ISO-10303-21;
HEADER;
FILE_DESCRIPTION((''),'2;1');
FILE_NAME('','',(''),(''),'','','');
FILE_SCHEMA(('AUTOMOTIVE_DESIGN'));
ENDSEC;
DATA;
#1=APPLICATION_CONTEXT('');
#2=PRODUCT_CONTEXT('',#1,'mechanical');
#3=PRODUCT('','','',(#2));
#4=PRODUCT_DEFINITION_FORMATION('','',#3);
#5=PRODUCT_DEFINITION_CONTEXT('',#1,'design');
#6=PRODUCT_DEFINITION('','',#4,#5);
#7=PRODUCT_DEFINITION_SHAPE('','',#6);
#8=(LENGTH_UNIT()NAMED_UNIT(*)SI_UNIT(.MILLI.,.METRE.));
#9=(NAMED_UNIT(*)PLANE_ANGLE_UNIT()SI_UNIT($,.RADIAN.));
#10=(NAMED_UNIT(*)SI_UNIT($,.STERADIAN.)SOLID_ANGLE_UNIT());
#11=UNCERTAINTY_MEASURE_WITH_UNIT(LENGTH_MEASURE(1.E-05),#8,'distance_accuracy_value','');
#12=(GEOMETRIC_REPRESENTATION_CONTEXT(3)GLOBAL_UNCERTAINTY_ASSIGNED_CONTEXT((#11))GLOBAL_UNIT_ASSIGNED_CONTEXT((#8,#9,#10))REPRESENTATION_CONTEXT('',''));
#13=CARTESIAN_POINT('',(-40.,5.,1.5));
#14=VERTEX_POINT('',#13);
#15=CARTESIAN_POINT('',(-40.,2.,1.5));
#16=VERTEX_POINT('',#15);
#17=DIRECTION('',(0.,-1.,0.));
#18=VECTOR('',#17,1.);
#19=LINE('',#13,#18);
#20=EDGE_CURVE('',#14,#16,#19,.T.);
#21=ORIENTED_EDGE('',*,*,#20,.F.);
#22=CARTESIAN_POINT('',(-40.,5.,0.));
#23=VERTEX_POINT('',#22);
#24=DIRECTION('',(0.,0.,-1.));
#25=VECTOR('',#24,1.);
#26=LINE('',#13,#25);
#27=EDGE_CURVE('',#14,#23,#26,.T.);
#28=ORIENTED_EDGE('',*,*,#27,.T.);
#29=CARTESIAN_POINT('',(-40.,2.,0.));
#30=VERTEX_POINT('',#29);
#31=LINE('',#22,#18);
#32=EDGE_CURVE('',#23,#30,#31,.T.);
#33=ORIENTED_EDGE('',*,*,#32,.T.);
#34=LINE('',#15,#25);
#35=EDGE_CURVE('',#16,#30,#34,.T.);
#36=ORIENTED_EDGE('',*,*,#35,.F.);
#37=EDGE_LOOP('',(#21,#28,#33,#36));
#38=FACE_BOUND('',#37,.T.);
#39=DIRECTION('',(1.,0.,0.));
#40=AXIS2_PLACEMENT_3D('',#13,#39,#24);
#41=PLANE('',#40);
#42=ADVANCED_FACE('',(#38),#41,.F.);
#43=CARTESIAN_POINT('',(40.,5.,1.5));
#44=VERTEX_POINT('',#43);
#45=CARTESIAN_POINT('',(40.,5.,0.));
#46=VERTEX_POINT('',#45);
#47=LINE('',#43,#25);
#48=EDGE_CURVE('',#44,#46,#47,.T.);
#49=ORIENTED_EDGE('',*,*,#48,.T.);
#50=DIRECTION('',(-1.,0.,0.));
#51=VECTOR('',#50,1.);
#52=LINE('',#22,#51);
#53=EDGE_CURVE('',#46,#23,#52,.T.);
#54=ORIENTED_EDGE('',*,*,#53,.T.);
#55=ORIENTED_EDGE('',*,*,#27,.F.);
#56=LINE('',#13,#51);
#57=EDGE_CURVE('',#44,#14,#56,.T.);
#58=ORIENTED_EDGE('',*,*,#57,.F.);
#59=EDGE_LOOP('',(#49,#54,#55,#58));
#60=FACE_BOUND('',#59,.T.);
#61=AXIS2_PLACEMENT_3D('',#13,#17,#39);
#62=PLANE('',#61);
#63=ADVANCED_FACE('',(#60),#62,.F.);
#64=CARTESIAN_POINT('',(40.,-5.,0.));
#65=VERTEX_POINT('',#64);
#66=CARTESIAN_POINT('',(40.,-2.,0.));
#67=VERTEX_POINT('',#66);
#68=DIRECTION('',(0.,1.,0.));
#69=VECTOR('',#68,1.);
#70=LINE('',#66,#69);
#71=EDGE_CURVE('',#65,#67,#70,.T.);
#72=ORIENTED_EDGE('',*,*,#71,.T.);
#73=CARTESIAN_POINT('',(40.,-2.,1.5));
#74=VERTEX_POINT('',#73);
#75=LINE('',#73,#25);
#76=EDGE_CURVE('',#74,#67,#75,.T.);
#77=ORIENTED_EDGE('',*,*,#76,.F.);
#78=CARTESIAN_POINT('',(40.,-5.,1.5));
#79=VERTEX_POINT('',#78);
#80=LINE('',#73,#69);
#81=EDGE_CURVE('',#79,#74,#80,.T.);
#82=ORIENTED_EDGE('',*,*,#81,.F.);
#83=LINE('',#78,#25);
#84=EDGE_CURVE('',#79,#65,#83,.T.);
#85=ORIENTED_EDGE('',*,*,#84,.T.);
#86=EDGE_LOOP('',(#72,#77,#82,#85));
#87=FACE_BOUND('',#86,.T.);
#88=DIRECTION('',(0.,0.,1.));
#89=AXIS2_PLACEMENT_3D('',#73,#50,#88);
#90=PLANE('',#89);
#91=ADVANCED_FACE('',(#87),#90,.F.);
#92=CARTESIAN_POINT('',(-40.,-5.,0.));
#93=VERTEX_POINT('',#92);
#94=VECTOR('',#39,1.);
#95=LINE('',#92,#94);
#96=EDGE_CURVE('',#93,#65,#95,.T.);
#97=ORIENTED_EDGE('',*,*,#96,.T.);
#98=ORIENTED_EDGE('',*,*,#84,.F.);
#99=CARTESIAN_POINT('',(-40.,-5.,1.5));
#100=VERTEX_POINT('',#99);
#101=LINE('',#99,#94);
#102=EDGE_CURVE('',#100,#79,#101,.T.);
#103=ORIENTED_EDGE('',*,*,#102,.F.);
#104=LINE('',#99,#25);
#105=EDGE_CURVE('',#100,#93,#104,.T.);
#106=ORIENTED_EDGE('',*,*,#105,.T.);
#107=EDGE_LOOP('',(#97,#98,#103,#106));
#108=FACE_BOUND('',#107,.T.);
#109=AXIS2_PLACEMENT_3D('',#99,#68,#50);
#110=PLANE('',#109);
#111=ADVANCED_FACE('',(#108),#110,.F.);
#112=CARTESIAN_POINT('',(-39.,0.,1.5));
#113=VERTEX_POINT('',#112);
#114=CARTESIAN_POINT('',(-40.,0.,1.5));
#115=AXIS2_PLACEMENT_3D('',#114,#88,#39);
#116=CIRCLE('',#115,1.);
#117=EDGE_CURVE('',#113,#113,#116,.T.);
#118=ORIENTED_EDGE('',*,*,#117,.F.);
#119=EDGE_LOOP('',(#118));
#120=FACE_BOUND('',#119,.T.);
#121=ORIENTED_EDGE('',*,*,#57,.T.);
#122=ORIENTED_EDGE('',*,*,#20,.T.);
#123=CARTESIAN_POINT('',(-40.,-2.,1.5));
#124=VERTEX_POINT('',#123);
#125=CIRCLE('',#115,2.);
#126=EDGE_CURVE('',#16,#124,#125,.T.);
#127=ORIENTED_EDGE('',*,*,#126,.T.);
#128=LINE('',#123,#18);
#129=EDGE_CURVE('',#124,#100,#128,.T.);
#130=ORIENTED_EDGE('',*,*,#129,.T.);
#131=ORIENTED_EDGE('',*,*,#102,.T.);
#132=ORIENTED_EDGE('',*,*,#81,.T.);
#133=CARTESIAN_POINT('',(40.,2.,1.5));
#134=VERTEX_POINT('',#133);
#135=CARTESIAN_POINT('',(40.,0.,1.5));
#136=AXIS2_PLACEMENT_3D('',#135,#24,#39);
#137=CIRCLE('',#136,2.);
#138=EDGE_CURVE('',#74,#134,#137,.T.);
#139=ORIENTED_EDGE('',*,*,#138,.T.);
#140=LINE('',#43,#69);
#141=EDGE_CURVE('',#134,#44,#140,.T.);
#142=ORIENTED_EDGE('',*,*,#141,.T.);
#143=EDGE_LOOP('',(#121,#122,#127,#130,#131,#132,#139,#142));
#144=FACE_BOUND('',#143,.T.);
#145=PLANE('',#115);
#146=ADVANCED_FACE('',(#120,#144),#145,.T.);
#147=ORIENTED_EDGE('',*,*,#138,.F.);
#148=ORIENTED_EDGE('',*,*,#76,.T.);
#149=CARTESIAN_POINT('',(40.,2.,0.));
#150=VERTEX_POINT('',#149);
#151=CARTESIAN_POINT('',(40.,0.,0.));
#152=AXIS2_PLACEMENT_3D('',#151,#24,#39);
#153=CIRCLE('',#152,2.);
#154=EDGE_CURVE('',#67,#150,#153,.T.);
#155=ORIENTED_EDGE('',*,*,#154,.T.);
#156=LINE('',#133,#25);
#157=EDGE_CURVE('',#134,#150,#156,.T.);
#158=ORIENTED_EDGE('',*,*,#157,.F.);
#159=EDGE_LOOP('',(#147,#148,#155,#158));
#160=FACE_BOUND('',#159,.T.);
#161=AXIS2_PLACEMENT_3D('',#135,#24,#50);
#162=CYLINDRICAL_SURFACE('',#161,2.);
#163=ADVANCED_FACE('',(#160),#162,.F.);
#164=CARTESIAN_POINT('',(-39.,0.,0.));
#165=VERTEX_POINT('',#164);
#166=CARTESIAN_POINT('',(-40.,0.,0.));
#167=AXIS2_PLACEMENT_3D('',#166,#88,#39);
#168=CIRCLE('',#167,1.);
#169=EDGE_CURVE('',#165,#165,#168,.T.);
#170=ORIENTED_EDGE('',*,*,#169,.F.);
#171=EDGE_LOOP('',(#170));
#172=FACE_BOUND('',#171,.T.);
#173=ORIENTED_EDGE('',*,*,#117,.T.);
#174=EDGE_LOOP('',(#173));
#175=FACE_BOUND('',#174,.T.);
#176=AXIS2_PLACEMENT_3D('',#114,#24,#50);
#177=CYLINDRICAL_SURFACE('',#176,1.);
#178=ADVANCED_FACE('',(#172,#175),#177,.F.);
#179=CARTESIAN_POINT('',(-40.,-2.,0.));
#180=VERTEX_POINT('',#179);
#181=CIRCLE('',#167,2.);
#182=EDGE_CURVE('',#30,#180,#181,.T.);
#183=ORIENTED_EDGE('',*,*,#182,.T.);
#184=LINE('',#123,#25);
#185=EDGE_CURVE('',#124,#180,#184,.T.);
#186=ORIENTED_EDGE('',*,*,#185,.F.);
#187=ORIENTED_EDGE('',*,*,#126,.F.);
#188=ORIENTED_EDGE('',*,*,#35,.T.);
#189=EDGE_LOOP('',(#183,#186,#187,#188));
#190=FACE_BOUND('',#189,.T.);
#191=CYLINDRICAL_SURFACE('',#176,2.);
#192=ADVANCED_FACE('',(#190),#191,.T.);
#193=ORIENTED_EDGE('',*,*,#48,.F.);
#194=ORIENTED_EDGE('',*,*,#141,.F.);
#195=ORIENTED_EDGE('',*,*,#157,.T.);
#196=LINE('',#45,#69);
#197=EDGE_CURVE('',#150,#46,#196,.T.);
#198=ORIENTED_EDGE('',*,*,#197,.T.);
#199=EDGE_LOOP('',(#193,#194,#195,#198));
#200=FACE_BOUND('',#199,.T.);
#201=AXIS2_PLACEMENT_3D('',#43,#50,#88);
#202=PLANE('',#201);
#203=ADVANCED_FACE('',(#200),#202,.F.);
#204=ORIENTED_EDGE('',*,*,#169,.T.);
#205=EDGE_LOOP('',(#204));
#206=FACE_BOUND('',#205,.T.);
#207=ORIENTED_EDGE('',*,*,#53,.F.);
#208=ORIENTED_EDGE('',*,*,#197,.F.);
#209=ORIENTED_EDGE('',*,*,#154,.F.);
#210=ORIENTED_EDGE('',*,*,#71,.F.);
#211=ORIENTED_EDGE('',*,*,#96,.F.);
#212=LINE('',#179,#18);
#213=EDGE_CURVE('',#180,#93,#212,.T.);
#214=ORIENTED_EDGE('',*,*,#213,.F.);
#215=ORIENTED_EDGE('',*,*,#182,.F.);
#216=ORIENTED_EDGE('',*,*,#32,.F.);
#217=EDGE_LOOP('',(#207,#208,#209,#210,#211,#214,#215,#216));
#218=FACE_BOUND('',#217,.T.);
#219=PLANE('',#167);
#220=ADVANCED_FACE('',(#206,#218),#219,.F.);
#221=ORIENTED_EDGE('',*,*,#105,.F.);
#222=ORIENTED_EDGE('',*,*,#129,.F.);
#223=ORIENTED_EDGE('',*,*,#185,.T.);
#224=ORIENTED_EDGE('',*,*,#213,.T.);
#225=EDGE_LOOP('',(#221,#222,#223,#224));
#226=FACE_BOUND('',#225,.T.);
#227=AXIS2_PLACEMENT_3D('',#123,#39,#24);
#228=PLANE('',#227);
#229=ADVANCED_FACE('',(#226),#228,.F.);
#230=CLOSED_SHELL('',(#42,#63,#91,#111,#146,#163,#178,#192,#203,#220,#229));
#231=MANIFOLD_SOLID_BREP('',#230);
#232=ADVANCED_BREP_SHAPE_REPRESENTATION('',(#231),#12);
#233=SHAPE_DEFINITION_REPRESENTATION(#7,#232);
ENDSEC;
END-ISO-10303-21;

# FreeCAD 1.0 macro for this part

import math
import FreeCAD as App
import Part
import Sketcher
from FreeCAD import Vector
Q = App.Units.Quantity

doc = App.newDocument("Part")
params = doc.addObject("Spreadsheet::Sheet", "Params")
for row, (alias, value) in enumerate([
    ("sketch1_diameter", "2 mm"),
    ("sketch1_radius", "2 mm"),
    ("sketch1_width", "80 mm"),
    ("sketch1_height", "3 mm"),
    ("pad1_length", "1.5 mm"),
], start=1):
    params.set(f"A{row}", alias)
    params.set(f"B{row}", "=" + value)
    params.setAlias(f"B{row}", alias)

body = doc.addObject("PartDesign::Body", "Body")

# Sketch on XY plane
sketch1 = body.newObject("Sketcher::SketchObject", "Sketch")
sketch1.AttachmentSupport = (doc.getObject("XY_Plane"), [""])
sketch1.MapMode = "FlatFace"
sketch1.addGeometry(Part.LineSegment(Vector(-40, -2, 0), Vector(-40, -5, 0)), False)
sketch1.addGeometry(Part.LineSegment(Vector(-40, -5, 0), Vector(40, -5, 0)), False)
sketch1.addGeometry(Part.LineSegment(Vector(40, -5, 0), Vector(40, -2, 0)), False)
sketch1.addGeometry(Part.ArcOfCircle(Part.Circle(Vector(40, 0, 0), Vector(0, 0, 1), 2), math.radians(90), math.radians(270)), False)
sketch1.addGeometry(Part.LineSegment(Vector(40, 2, 0), Vector(40, 5, 0)), False)
sketch1.addGeometry(Part.LineSegment(Vector(40, 5, 0), Vector(-40, 5, 0)), False)
sketch1.addGeometry(Part.LineSegment(Vector(-40, 5, 0), Vector(-40, 2, 0)), False)
sketch1.addGeometry(Part.ArcOfCircle(Part.Circle(Vector(-40, 0, 0), Vector(0, 0, 1), 2), math.radians(90), math.radians(270)), False)
sketch1.addGeometry(Part.Circle(Vector(-40, 0, 0), Vector(0, 0, 1), 1), False)
sketch1.addConstraint(Sketcher.Constraint("Coincident", 0, 2, 1, 1))
sketch1.addConstraint(Sketcher.Constraint("Coincident", 1, 2, 2, 1))
sketch1.addConstraint(Sketcher.Constraint("Coincident", 2, 2, 3, 2))
sketch1.addConstraint(Sketcher.Constraint("Coincident", 3, 1, 4, 1))
sketch1.addConstraint(Sketcher.Constraint("Coincident", 4, 2, 5, 1))
sketch1.addConstraint(Sketcher.Constraint("Coincident", 5, 2, 6, 1))
sketch1.addConstraint(Sketcher.Constraint("Coincident", 6, 2, 7, 1))
sketch1.addConstraint(Sketcher.Constraint("Coincident", 7, 2, 0, 1))
sketch1.addConstraint(Sketcher.Constraint("Vertical", 0))
sketch1.addConstraint(Sketcher.Constraint("Horizontal", 1))
sketch1.addConstraint(Sketcher.Constraint("Vertical", 2))
sketch1.addConstraint(Sketcher.Constraint("Vertical", 4))
sketch1.addConstraint(Sketcher.Constraint("Horizontal", 5))
sketch1.addConstraint(Sketcher.Constraint("Vertical", 6))
sketch1.addConstraint(Sketcher.Constraint("Coincident", 8, 3, 7, 3))
sketch1.addConstraint(Sketcher.Constraint("Equal", 3, 7))
sketch1.addConstraint(Sketcher.Constraint("Symmetric", 3, 3, 7, 3, -1, 1))
sketch1.addConstraint(Sketcher.Constraint("Symmetric", 0, 2, 4, 2, -1, 1))
sketch1.addConstraint(Sketcher.Constraint("Symmetric", 3, 1, 6, 2, -2))
sketch1.addConstraint(Sketcher.Constraint("Vertical", 8, 3, 0, 2))
sketch1.addConstraint(Sketcher.Constraint("Vertical", 3, 3, 1, 2))
sketch1.addConstraint(Sketcher.Constraint("Diameter", 8, Q("2 mm")))
sketch1.addConstraint(Sketcher.Constraint("Radius", 3, Q("2 mm")))
sketch1.addConstraint(Sketcher.Constraint("DistanceX", 1, 1, 1, 2, Q("80 mm")))
sketch1.addConstraint(Sketcher.Constraint("DistanceY", 0, 2, 0, 1, Q("3 mm")))
sketch1.setExpression("Constraints[21]", "Params.sketch1_diameter")
sketch1.setExpression("Constraints[22]", "Params.sketch1_radius")
sketch1.setExpression("Constraints[23]", "Params.sketch1_width")
sketch1.setExpression("Constraints[24]", "Params.sketch1_height")
pad1 = body.newObject("PartDesign::Pad", "Pad")
pad1.Profile = sketch1
pad1.setExpression("Length", "Params.pad1_length")

doc.recompute()
